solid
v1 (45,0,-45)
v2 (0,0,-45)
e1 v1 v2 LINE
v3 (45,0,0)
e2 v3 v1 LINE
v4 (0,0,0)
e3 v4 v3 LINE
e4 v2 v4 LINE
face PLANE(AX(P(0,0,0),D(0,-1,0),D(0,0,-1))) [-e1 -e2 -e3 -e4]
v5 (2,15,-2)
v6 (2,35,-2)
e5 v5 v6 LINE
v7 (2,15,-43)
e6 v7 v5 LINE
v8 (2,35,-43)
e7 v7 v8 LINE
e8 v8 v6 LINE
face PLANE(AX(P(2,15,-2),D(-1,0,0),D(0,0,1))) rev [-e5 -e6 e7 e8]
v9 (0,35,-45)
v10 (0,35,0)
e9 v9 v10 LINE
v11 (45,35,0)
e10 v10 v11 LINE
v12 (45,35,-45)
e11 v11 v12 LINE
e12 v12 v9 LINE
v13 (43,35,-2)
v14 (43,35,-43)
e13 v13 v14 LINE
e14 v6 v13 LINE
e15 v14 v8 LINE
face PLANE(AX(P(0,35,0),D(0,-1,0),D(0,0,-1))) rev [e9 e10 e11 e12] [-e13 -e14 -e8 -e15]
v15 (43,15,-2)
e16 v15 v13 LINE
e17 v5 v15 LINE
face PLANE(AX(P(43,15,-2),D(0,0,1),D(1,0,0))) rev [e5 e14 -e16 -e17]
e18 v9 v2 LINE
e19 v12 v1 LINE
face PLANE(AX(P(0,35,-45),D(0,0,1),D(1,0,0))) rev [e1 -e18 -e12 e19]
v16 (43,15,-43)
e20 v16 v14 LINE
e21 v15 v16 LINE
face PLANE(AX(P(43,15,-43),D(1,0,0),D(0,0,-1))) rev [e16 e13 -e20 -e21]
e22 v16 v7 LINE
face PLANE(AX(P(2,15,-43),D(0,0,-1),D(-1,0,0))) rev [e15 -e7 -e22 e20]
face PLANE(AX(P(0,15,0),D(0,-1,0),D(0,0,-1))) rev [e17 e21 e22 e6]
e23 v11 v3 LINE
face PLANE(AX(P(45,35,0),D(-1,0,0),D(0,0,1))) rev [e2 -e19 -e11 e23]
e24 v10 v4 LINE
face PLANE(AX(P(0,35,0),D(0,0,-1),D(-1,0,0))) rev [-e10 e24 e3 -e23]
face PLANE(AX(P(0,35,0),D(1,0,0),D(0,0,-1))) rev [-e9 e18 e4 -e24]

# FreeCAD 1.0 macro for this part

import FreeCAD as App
import Part
import Sketcher

doc = App.newDocument("Part")
body = doc.addObject("PartDesign::Body", "Body")

# Sketch on XZ plane
sketch1 = doc.addObject("Sketcher::SketchObject", "Sketch")
body.addObject(sketch1)
sketch1.AttachmentSupport = (doc.XZ_Plane, [""])
sketch1.MapMode = "FlatFace"
sketch1.addGeometry([
    Part.LineSegment(App.Vector(0, -45, 0), App.Vector(0, 0, 0)),
    Part.LineSegment(App.Vector(0, 0, 0), App.Vector(45, 0, 0)),
    Part.LineSegment(App.Vector(45, 0, 0), App.Vector(45, -45, 0)),
    Part.LineSegment(App.Vector(45, -45, 0), App.Vector(0, -45, 0)),
], False)
sketch1.addConstraint([
    Sketcher.Constraint("Coincident", 0, 2, 1, 1),
    Sketcher.Constraint("Coincident", 1, 2, 2, 1),
    Sketcher.Constraint("Coincident", 2, 2, 3, 1),
    Sketcher.Constraint("Coincident", 3, 2, 0, 1),
    Sketcher.Constraint("Vertical", 0),
    Sketcher.Constraint("Horizontal", 1),
    Sketcher.Constraint("Vertical", 2),
    Sketcher.Constraint("Horizontal", 3),
    Sketcher.Constraint("Coincident", 0, 2, -1, 1),
    Sketcher.Constraint("Equal", 3, 0),
    Sketcher.Constraint("DistanceX", 1, 1, 1, 2, 45.0),
])
pad1 = doc.addObject("PartDesign::Pad", "Pad")
body.addObject(pad1)
pad1.Profile = sketch1
pad1.Length = 35
pad1.Reversed = True

# Sketch on XZ plane
sketch2 = doc.addObject("Sketcher::SketchObject", "Sketch001")
body.addObject(sketch2)
sketch2.AttachmentSupport = (doc.XZ_Plane, [""])
sketch2.MapMode = "FlatFace"
sketch2.AttachmentOffset = App.Placement(App.Vector(0, 0, -35), App.Rotation())
sketch2.addGeometry([
    Part.LineSegment(App.Vector(2, -43, 0), App.Vector(2, -2, 0)),
    Part.LineSegment(App.Vector(2, -2, 0), App.Vector(43, -2, 0)),
    Part.LineSegment(App.Vector(43, -2, 0), App.Vector(43, -43, 0)),
    Part.LineSegment(App.Vector(43, -43, 0), App.Vector(2, -43, 0)),
], False)
sketch2.addConstraint([
    Sketcher.Constraint("Coincident", 0, 2, 1, 1),
    Sketcher.Constraint("Coincident", 1, 2, 2, 1),
    Sketcher.Constraint("Coincident", 2, 2, 3, 1),
    Sketcher.Constraint("Coincident", 3, 2, 0, 1),
    Sketcher.Constraint("Vertical", 0),
    Sketcher.Constraint("Horizontal", 1),
    Sketcher.Constraint("Vertical", 2),
    Sketcher.Constraint("Horizontal", 3),
    Sketcher.Constraint("Equal", 3, 0),
    Sketcher.Constraint("DistanceX", 1, 1, 1, 2, 41.0),
    Sketcher.Constraint("DistanceX", -1, 1, 0, 2, 2.0),
    Sketcher.Constraint("DistanceY", 0, 2, -1, 1, 2.0),
])
pocket1 = doc.addObject("PartDesign::Pocket", "Pocket")
body.addObject(pocket1)
pocket1.Profile = sketch2
pocket1.Length = 20
pocket1.Reversed = True

doc.recompute()
